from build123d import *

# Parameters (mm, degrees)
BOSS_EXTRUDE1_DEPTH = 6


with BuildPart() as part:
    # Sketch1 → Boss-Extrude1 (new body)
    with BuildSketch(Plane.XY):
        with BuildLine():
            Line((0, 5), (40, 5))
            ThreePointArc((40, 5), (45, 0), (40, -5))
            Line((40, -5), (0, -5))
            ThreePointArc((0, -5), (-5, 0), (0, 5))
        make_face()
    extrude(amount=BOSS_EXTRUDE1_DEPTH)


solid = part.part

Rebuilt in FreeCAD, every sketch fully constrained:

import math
import FreeCAD as App
import Part
import Sketcher

doc = App.newDocument("Part")
body = doc.addObject("PartDesign::Body", "Body")

# Sketch on XY plane
sketch1 = body.newObject("Sketcher::SketchObject", "Sketch")
sketch1.AttachmentSupport = (doc.getObject("XY_Plane"), [""])
sketch1.MapMode = "FlatFace"
sketch1.addGeometry([
    Part.LineSegment(App.Vector(40, 5, 0), App.Vector(0, 5, 0)),
    Part.ArcOfCircle(Part.Circle(App.Vector(0, 0, 0), App.Vector(0, 0, 1), 5), math.radians(90), math.radians(270)),
    Part.LineSegment(App.Vector(0, -5, 0), App.Vector(40, -5, 0)),
    Part.ArcOfCircle(Part.Circle(App.Vector(40, 0, 0), App.Vector(0, 0, 1), 5), math.radians(-90), math.radians(90)),
], False)
sketch1.addConstraint([
    Sketcher.Constraint("Tangent", 0, 2, 1, 1),
    Sketcher.Constraint("Tangent", 1, 2, 2, 1),
    Sketcher.Constraint("Tangent", 2, 2, 3, 1),
    Sketcher.Constraint("Tangent", 3, 2, 0, 1),
    Sketcher.Constraint("Horizontal", 0),
    Sketcher.Constraint("Horizontal", 2),
    Sketcher.Constraint("Coincident", 1, 3, -1, 1),
    Sketcher.Constraint("Radius", 1, 5.0),
    Sketcher.Constraint("DistanceX", 0, 2, 0, 1, 40.0),
])
pad1 = body.newObject("PartDesign::Pad", "Pad")
pad1.Profile = sketch1
pad1.Length = 6

doc.recompute()
